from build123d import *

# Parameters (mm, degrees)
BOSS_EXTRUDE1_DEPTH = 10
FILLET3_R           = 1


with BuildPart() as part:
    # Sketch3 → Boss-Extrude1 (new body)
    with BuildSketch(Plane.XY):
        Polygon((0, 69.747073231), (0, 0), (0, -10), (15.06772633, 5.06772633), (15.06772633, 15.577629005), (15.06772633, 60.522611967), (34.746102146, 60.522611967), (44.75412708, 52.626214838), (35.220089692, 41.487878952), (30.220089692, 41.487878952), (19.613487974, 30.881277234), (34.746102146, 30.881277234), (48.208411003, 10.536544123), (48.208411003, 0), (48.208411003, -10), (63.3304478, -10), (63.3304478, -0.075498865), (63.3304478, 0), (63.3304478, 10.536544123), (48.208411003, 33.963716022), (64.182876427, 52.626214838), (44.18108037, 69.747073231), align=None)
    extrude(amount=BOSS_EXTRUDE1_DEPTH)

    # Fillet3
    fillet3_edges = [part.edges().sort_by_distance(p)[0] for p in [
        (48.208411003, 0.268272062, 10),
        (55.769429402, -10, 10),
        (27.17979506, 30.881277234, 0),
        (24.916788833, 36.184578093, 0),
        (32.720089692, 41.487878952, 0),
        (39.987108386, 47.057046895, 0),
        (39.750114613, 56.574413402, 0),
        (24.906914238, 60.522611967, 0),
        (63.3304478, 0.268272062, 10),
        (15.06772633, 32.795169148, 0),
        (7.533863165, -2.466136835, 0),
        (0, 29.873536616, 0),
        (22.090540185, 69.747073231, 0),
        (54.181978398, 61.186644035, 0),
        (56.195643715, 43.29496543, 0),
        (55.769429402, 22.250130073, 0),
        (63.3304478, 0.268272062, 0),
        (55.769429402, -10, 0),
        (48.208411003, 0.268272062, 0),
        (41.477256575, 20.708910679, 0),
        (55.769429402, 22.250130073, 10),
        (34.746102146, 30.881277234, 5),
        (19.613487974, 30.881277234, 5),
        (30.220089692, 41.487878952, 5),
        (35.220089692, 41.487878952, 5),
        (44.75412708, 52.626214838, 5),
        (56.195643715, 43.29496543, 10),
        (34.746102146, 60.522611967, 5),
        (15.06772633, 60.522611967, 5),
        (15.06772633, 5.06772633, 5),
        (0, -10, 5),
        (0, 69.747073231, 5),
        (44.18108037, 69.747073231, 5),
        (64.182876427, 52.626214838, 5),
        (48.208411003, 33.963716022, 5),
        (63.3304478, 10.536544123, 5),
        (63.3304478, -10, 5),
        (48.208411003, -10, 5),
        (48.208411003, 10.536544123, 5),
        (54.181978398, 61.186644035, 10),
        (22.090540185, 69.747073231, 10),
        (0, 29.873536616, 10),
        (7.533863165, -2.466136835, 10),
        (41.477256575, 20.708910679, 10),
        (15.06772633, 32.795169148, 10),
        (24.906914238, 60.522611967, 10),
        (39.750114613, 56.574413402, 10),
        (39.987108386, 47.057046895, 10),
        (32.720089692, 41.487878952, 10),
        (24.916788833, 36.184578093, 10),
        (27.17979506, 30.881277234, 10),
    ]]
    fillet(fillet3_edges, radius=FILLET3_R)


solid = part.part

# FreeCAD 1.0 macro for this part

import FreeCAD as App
import Part
import Sketcher
Q = App.Units.Quantity


def add_polygon(sketch, points):
    """Adds a closed chain of lines whose ends are joined by coincident constraints."""
    first, n = sketch.GeometryCount, len(points)
    for a, b in zip(points, points[1:] + points[:1]):
        sketch.addGeometry(Part.LineSegment(App.Vector(*a, 0), App.Vector(*b, 0)), False)
    for i in range(n):
        sketch.addConstraint(Sketcher.Constraint("Coincident", first + i, 2, first + (i + 1) % n, 1))

doc = App.newDocument("Part")
body = doc.addObject("PartDesign::Body", "Body")

# Sketch on XY plane
sketch1 = body.newObject("Sketcher::SketchObject", "Sketch")
sketch1.AttachmentSupport = (doc.getObject("XY_Plane"), [""])
sketch1.MapMode = "FlatFace"
add_polygon(sketch1, [(0, 69.747073), (0, -10), (15.067726, 5.067726), (15.067726, 60.522612), (34.746102, 60.522612), (44.754127, 52.626215), (35.22009, 41.487879), (30.22009, 41.487879), (19.613488, 30.881277), (34.746102, 30.881277), (48.208411, 10.536544), (48.208411, -10), (63.330448, -10), (63.330448, 10.536544), (48.208411, 33.963716), (64.182876, 52.626215), (44.18108, 69.747073)])  # lines 0-16
sketch1.addConstraint([
    Sketcher.Constraint("Vertical", 0),
    Sketcher.Constraint("Vertical", 2),
    Sketcher.Constraint("Horizontal", 3),
    Sketcher.Constraint("Horizontal", 6),
    Sketcher.Constraint("Horizontal", 8),
    Sketcher.Constraint("Vertical", 10),
    Sketcher.Constraint("Horizontal", 11),
    Sketcher.Constraint("Vertical", 12),
    Sketcher.Constraint("Horizontal", 16),
    Sketcher.Constraint("PointOnObject", 0, 2, -2),
    Sketcher.Constraint("Parallel", 1, 7),
    Sketcher.Constraint("Parallel", 5, 14),
    Sketcher.Constraint("Perpendicular", 14, 15),
    Sketcher.Constraint("Horizontal", 0, 2, 10, 2),
    Sketcher.Constraint("Horizontal", 9, 2, 12, 2),
    Sketcher.Constraint("Horizontal", 4, 2, 14, 2),
    Sketcher.Constraint("Vertical", 3, 2, 8, 2),
    Sketcher.Constraint("Vertical", 10, 2, 13, 2),
    Sketcher.Constraint("DistanceX", 6, 2, 6, 1, Q("5 mm")),
    Sketcher.Constraint("Angle", 1, Q("45 deg")),
    Sketcher.Constraint("Distance", 7, Q("15 mm")),
    Sketcher.Constraint("DistanceY", 0, 2, -1, 1, Q("10 mm")),
    Sketcher.Constraint("DistanceX", 16, 2, 16, 1, Q("44.18108 mm")),
    Sketcher.Constraint("DistanceX", 2, 2, 4, 2, Q("29.686401 mm")),
    Sketcher.Constraint("DistanceY", 13, 2, 4, 2, Q("18.662499 mm")),
    Sketcher.Constraint("Distance", 9, Q("24.395531 mm")),
    Sketcher.Constraint("Distance", 15, Q("26.328609 mm")),
    Sketcher.Constraint("DistanceX", 3, 1, 3, 2, Q("19.678376 mm")),
    Sketcher.Constraint("DistanceX", 8, 1, 8, 2, Q("15.132614 mm")),
    Sketcher.Constraint("DistanceX", 11, 1, 11, 2, Q("15.122037 mm")),
    Sketcher.Constraint("DistanceY", 0, 2, 0, 1, Q("79.747073 mm")),
    Sketcher.Constraint("DistanceY", 2, 1, 2, 2, Q("55.454886 mm")),
    Sketcher.Constraint("DistanceY", 10, 2, 10, 1, Q("20.536544 mm")),
    Sketcher.Constraint("DistanceY", -1, 1, 2, 2, Q("60.522612 mm")),
])
pad1 = body.newObject("PartDesign::Pad", "Pad")
pad1.Profile = sketch1
pad1.Length = 10
doc.recompute()

fillet = body.newObject("PartDesign::Fillet", "Fillet")
fillet.Base = (pad1, ["Edge1"])
fillet.UseAllEdges = True
fillet.Radius = 1

doc.recompute()
